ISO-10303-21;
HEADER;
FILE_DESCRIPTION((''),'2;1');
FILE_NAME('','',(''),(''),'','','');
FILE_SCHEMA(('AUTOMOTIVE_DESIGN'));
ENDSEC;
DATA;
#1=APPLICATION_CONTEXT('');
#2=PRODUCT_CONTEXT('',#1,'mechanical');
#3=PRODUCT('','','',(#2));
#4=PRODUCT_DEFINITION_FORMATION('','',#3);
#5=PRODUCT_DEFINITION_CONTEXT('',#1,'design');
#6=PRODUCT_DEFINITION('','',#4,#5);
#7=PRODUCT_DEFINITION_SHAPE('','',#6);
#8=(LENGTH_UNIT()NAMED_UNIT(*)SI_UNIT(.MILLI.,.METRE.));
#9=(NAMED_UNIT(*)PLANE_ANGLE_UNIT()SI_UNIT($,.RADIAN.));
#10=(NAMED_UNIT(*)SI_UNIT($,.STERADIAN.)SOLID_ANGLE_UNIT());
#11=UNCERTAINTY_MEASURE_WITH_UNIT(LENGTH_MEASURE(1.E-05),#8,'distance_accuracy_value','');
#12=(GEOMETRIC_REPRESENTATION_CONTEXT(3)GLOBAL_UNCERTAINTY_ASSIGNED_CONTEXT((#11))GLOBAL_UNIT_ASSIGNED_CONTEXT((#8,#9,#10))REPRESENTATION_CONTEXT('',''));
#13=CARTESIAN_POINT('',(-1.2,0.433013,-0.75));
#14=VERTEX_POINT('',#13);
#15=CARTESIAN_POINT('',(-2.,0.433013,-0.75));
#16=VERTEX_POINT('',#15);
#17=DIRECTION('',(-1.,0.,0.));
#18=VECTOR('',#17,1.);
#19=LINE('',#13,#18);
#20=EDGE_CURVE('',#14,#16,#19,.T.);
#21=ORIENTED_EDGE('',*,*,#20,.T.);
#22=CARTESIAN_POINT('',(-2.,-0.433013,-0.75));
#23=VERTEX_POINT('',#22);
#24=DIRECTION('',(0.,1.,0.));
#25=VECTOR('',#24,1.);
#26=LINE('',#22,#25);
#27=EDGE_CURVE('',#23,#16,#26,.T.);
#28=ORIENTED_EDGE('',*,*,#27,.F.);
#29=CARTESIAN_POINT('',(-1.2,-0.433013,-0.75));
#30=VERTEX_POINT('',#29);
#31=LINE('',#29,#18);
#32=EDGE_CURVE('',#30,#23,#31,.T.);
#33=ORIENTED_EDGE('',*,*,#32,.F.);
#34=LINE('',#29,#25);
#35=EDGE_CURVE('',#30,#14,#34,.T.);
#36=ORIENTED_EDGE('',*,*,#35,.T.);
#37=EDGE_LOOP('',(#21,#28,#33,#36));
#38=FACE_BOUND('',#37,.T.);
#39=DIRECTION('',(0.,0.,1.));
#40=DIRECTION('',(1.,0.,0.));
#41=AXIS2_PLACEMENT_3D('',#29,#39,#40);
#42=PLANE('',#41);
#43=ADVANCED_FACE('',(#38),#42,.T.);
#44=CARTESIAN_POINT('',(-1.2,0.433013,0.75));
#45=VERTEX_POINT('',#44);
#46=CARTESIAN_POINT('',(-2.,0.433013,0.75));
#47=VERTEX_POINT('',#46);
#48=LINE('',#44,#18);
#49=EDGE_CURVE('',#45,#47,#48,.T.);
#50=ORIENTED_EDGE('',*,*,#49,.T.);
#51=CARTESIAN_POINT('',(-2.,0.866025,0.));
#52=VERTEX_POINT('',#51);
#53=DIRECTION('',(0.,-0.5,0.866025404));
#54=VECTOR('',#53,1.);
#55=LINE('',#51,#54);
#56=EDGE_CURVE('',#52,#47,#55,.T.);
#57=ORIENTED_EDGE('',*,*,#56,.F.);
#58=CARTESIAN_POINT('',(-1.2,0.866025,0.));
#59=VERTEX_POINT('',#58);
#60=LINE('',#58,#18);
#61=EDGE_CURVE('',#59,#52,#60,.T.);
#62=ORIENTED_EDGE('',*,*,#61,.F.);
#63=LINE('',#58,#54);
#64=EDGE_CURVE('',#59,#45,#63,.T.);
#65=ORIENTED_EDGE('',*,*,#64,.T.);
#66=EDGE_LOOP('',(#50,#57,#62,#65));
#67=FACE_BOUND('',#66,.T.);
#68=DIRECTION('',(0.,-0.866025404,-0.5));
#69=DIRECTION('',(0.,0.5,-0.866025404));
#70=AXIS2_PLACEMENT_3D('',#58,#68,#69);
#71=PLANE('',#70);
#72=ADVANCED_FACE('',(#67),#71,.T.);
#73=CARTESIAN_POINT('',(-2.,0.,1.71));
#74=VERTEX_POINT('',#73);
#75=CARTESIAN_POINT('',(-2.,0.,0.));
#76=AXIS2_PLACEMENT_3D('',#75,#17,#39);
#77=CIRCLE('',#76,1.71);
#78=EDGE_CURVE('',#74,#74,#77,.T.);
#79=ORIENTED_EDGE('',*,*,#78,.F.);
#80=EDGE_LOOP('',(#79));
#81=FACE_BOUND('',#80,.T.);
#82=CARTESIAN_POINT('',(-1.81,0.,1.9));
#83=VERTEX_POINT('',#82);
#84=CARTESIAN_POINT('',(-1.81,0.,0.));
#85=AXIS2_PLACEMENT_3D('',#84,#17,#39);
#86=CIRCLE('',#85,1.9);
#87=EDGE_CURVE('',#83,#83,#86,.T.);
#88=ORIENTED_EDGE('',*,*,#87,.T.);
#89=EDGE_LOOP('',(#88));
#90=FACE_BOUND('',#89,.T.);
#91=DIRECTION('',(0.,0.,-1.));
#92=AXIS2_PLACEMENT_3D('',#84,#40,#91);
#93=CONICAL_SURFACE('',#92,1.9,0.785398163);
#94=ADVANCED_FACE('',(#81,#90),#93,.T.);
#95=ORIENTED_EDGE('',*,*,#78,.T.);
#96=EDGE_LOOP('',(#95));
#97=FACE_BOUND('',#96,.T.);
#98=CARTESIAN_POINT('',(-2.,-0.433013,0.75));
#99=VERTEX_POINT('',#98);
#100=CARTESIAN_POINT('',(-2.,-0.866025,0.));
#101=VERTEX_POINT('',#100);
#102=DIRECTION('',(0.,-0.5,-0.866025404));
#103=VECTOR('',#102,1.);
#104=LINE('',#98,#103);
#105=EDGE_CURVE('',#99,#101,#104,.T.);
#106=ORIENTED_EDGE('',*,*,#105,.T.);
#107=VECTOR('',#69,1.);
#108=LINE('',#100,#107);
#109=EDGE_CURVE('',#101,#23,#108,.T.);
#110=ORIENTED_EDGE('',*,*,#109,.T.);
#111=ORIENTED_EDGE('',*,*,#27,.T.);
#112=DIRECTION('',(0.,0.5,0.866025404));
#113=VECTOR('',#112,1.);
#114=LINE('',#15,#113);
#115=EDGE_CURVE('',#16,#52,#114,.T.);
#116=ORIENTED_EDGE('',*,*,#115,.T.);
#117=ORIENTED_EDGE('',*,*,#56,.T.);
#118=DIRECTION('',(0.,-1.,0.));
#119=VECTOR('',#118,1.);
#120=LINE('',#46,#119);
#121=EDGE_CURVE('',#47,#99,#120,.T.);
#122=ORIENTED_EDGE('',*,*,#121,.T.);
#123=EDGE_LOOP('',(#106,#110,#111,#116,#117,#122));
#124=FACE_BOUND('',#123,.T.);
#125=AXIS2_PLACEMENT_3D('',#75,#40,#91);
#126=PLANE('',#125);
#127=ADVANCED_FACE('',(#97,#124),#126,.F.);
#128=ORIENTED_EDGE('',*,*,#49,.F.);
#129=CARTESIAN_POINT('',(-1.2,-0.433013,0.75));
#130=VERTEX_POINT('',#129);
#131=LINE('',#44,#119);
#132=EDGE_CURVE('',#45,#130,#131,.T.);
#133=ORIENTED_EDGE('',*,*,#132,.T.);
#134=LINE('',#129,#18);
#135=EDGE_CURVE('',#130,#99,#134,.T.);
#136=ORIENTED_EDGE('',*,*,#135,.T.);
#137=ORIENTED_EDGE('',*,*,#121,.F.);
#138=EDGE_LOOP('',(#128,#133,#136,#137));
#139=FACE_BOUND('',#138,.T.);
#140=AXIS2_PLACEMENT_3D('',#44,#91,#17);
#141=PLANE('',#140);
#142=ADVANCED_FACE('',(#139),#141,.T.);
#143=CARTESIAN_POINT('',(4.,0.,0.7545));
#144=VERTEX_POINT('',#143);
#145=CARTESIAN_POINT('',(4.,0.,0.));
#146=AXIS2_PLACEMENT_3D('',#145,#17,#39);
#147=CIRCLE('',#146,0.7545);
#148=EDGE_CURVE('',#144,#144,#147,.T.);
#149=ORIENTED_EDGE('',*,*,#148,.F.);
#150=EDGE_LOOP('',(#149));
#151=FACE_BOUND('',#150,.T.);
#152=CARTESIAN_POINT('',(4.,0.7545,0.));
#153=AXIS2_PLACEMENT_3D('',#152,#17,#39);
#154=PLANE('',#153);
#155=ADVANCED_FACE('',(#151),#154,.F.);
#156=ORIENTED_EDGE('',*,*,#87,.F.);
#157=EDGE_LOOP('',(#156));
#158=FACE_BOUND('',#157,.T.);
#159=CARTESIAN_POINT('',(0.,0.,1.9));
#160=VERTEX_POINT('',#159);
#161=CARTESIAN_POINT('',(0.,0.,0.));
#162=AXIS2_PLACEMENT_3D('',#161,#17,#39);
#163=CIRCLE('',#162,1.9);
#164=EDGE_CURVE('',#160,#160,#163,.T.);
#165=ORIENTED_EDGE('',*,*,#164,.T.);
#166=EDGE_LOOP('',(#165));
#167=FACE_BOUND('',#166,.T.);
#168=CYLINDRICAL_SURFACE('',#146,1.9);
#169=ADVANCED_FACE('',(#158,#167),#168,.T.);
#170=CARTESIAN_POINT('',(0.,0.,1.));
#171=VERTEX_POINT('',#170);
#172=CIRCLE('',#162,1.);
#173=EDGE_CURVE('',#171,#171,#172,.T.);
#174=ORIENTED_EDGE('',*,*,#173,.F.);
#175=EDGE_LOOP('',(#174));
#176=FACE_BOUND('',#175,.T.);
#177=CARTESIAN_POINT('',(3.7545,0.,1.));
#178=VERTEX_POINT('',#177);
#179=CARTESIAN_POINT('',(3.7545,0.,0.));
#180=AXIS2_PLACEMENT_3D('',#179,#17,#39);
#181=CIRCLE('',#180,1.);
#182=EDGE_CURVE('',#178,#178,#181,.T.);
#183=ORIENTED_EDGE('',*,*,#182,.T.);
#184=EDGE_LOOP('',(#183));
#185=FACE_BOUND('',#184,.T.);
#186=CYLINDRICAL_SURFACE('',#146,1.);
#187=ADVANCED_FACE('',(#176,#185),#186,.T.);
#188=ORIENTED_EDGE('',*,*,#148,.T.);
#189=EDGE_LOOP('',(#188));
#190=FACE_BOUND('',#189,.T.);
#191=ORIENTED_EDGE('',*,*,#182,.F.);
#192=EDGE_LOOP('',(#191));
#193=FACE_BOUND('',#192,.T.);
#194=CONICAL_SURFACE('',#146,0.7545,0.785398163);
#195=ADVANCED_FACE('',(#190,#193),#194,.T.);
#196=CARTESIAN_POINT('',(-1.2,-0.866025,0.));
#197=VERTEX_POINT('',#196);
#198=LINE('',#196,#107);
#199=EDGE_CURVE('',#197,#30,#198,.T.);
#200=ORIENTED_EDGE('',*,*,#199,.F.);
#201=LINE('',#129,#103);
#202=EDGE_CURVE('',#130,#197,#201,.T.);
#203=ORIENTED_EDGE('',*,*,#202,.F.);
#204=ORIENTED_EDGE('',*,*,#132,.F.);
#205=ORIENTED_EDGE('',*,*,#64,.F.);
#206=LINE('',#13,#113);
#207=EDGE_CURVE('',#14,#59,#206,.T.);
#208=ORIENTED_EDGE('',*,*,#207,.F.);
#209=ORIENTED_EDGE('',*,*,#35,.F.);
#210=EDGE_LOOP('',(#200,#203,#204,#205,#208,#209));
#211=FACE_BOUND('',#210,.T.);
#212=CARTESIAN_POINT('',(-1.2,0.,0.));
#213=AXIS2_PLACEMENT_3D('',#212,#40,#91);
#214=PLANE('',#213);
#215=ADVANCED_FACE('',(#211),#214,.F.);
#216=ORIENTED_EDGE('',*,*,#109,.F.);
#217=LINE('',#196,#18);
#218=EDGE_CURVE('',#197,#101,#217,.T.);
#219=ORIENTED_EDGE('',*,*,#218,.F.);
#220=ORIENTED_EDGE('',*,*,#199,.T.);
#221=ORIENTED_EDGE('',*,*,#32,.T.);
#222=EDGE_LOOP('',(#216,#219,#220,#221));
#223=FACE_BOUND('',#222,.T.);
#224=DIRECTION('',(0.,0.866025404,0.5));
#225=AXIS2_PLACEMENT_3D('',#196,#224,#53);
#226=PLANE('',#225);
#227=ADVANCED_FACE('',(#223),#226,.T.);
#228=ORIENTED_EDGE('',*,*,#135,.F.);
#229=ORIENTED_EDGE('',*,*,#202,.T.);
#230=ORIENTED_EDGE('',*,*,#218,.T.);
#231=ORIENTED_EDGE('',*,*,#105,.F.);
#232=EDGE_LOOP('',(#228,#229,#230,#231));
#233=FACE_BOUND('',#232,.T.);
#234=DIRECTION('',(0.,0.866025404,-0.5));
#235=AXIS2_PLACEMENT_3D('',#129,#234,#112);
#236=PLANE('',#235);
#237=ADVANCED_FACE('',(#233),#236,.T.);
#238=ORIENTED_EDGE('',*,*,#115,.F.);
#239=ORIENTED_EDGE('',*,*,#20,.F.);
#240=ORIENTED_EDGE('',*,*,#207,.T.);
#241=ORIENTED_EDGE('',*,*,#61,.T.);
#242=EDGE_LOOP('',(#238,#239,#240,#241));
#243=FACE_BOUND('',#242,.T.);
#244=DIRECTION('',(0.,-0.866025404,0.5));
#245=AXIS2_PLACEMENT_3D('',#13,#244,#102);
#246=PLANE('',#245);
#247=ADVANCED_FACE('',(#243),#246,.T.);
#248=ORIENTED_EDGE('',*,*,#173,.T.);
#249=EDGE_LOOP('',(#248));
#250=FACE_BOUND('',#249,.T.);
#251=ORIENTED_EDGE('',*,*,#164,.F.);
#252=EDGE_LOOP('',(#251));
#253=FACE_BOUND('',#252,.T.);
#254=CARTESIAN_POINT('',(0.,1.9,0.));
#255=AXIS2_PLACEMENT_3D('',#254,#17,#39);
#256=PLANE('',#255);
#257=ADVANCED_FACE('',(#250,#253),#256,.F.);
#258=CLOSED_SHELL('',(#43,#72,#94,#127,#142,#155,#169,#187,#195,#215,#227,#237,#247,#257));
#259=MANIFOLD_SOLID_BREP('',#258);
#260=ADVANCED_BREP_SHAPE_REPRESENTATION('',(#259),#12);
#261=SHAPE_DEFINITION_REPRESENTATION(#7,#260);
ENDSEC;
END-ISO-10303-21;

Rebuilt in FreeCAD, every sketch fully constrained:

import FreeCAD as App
import Part
import Sketcher
Q = App.Units.Quantity

doc = App.newDocument("Part")
params = doc.addObject("Spreadsheet::Sheet", "Params")
for row, (alias, value) in enumerate([
    ("sketch1_width", "6 mm"),
    ("sketch1_height", "0.9 mm"),
    ("sketch1_width2", "1.81 mm"),
    ("revolution_angle", "360 deg"),
    ("pocket1_length", "0.8 mm"),
], start=1):
    params.set(f"A{row}", alias)
    params.set(f"B{row}", "=" + value)
    params.setAlias(f"B{row}", alias)

body = doc.addObject("PartDesign::Body", "Body")

sketch1 = body.newObject("Sketcher::SketchObject", "Sketch")
sketch1.AttachmentSupport = (doc.getObject("XY_Plane"), [""])
sketch1.MapMode = "FlatFace"
sketch1.addGeometry(Part.LineSegment(App.Vector(-2, 1.71, 0), App.Vector(-2, 0, 0)), False)
sketch1.addGeometry(Part.LineSegment(App.Vector(-2, 0, 0), App.Vector(4, 0, 0)), False)
sketch1.addGeometry(Part.LineSegment(App.Vector(4, 0, 0), App.Vector(4, 0.7545, 0)), False)
sketch1.addGeometry(Part.LineSegment(App.Vector(4, 0.7545, 0), App.Vector(3.7545, 1, 0)), False)
sketch1.addGeometry(Part.LineSegment(App.Vector(3.7545, 1, 0), App.Vector(0, 1, 0)), False)
sketch1.addGeometry(Part.LineSegment(App.Vector(0, 1, 0), App.Vector(0, 1.9, 0)), False)
sketch1.addGeometry(Part.LineSegment(App.Vector(0, 1.9, 0), App.Vector(-1.81, 1.9, 0)), False)
sketch1.addGeometry(Part.LineSegment(App.Vector(-1.81, 1.9, 0), App.Vector(-2, 1.71, 0)), False)
sketch1.addConstraint(Sketcher.Constraint("Coincident", 0, 2, 1, 1))
sketch1.addConstraint(Sketcher.Constraint("Coincident", 1, 2, 2, 1))
sketch1.addConstraint(Sketcher.Constraint("Coincident", 2, 2, 3, 1))
sketch1.addConstraint(Sketcher.Constraint("Coincident", 3, 2, 4, 1))
sketch1.addConstraint(Sketcher.Constraint("Coincident", 4, 2, 5, 1))
sketch1.addConstraint(Sketcher.Constraint("Coincident", 5, 2, 6, 1))
sketch1.addConstraint(Sketcher.Constraint("Coincident", 6, 2, 7, 1))
sketch1.addConstraint(Sketcher.Constraint("Coincident", 7, 2, 0, 1))
sketch1.addConstraint(Sketcher.Constraint("Vertical", 0))
sketch1.addConstraint(Sketcher.Constraint("Horizontal", 1))
sketch1.addConstraint(Sketcher.Constraint("Vertical", 2))
sketch1.addConstraint(Sketcher.Constraint("Horizontal", 4))
sketch1.addConstraint(Sketcher.Constraint("Vertical", 5))
sketch1.addConstraint(Sketcher.Constraint("Horizontal", 6))
sketch1.addConstraint(Sketcher.Constraint("PointOnObject", 0, 2, -1))
sketch1.addConstraint(Sketcher.Constraint("PointOnObject", 4, 2, -2))
sketch1.addConstraint(Sketcher.Constraint("Perpendicular", 3, 7))
sketch1.addConstraint(Sketcher.Constraint("DistanceX", 1, 1, 1, 2, 6.0))
sketch1.addConstraint(Sketcher.Constraint("Angle", 3, Q("135 deg")))
sketch1.addConstraint(Sketcher.Constraint("DistanceY", 5, 1, 5, 2, 0.9))
sketch1.addConstraint(Sketcher.Constraint("DistanceX", 0, 2, -1, 1, 2.0))
sketch1.addConstraint(Sketcher.Constraint("DistanceY", -1, 1, 3, 2, 1.0))
sketch1.addConstraint(Sketcher.Constraint("DistanceX", 6, 2, 6, 1, 1.81))
sketch1.addConstraint(Sketcher.Constraint("DistanceX", 4, 2, 4, 1, 3.7545))
sketch1.setExpression("Constraints[17]", "Params.sketch1_width")
sketch1.setExpression("Constraints[19]", "Params.sketch1_height")
sketch1.setExpression("Constraints[22]", "Params.sketch1_width2")
revolution = body.newObject("PartDesign::Revolution", "Revolution")
revolution.Profile = sketch1
revolution.ReferenceAxis = (sketch1, ["H_Axis"])
revolution.setExpression("Angle", "Params.revolution_angle")

sketch2 = body.newObject("Sketcher::SketchObject", "Sketch001")
sketch2.AttachmentSupport = (doc.getObject("YZ_Plane"), [""])
sketch2.MapMode = "FlatFace"
sketch2.AttachmentOffset = App.Placement(App.Vector(0, 0, -2), App.Rotation())
sketch2.addGeometry(Part.LineSegment(App.Vector(-0.433013, 0.75, 0), App.Vector(-0.866025, 0, 0)), False)
sketch2.addGeometry(Part.LineSegment(App.Vector(-0.866025, 0, 0), App.Vector(-0.433013, -0.75, 0)), False)
sketch2.addGeometry(Part.LineSegment(App.Vector(-0.433013, -0.75, 0), App.Vector(0.433013, -0.75, 0)), False)
sketch2.addGeometry(Part.LineSegment(App.Vector(0.433013, -0.75, 0), App.Vector(0.866025, 0, 0)), False)
sketch2.addGeometry(Part.LineSegment(App.Vector(0.866025, 0, 0), App.Vector(0.433013, 0.75, 0)), False)
sketch2.addGeometry(Part.LineSegment(App.Vector(0.433013, 0.75, 0), App.Vector(-0.433013, 0.75, 0)), False)
sketch2.addConstraint(Sketcher.Constraint("Coincident", 0, 2, 1, 1))
sketch2.addConstraint(Sketcher.Constraint("Coincident", 1, 2, 2, 1))
sketch2.addConstraint(Sketcher.Constraint("Coincident", 2, 2, 3, 1))
sketch2.addConstraint(Sketcher.Constraint("Coincident", 3, 2, 4, 1))
sketch2.addConstraint(Sketcher.Constraint("Coincident", 4, 2, 5, 1))
sketch2.addConstraint(Sketcher.Constraint("Coincident", 5, 2, 0, 1))
sketch2.addConstraint(Sketcher.Constraint("Horizontal", 2))
sketch2.addConstraint(Sketcher.Constraint("Horizontal", 5))
sketch2.addConstraint(Sketcher.Constraint("Symmetric", 0, 2, 3, 2, -1, 1))
sketch2.addConstraint(Sketcher.Constraint("Symmetric", 1, 2, 4, 2, -1, 1))
sketch2.addConstraint(Sketcher.Constraint("PointOnObject", 0, 2, -1))
sketch2.addConstraint(Sketcher.Constraint("Parallel", 0, 3))
sketch2.addConstraint(Sketcher.Constraint("Vertical", 2, 2, 4, 2))
sketch2.addConstraint(Sketcher.Constraint("Angle", 0, Q("-120 deg")))
sketch2.addConstraint(Sketcher.Constraint("DistanceY", 2, 2, 4, 2, 1.5))
sketch2.addConstraint(Sketcher.Constraint("DistanceX", 2, 1, 2, 2, 0.866025))
pocket1 = body.newObject("PartDesign::Pocket", "Pocket")
pocket1.Profile = sketch2
pocket1.setExpression("Length", "Params.pocket1_length")
pocket1.Reversed = True

doc.recompute()
